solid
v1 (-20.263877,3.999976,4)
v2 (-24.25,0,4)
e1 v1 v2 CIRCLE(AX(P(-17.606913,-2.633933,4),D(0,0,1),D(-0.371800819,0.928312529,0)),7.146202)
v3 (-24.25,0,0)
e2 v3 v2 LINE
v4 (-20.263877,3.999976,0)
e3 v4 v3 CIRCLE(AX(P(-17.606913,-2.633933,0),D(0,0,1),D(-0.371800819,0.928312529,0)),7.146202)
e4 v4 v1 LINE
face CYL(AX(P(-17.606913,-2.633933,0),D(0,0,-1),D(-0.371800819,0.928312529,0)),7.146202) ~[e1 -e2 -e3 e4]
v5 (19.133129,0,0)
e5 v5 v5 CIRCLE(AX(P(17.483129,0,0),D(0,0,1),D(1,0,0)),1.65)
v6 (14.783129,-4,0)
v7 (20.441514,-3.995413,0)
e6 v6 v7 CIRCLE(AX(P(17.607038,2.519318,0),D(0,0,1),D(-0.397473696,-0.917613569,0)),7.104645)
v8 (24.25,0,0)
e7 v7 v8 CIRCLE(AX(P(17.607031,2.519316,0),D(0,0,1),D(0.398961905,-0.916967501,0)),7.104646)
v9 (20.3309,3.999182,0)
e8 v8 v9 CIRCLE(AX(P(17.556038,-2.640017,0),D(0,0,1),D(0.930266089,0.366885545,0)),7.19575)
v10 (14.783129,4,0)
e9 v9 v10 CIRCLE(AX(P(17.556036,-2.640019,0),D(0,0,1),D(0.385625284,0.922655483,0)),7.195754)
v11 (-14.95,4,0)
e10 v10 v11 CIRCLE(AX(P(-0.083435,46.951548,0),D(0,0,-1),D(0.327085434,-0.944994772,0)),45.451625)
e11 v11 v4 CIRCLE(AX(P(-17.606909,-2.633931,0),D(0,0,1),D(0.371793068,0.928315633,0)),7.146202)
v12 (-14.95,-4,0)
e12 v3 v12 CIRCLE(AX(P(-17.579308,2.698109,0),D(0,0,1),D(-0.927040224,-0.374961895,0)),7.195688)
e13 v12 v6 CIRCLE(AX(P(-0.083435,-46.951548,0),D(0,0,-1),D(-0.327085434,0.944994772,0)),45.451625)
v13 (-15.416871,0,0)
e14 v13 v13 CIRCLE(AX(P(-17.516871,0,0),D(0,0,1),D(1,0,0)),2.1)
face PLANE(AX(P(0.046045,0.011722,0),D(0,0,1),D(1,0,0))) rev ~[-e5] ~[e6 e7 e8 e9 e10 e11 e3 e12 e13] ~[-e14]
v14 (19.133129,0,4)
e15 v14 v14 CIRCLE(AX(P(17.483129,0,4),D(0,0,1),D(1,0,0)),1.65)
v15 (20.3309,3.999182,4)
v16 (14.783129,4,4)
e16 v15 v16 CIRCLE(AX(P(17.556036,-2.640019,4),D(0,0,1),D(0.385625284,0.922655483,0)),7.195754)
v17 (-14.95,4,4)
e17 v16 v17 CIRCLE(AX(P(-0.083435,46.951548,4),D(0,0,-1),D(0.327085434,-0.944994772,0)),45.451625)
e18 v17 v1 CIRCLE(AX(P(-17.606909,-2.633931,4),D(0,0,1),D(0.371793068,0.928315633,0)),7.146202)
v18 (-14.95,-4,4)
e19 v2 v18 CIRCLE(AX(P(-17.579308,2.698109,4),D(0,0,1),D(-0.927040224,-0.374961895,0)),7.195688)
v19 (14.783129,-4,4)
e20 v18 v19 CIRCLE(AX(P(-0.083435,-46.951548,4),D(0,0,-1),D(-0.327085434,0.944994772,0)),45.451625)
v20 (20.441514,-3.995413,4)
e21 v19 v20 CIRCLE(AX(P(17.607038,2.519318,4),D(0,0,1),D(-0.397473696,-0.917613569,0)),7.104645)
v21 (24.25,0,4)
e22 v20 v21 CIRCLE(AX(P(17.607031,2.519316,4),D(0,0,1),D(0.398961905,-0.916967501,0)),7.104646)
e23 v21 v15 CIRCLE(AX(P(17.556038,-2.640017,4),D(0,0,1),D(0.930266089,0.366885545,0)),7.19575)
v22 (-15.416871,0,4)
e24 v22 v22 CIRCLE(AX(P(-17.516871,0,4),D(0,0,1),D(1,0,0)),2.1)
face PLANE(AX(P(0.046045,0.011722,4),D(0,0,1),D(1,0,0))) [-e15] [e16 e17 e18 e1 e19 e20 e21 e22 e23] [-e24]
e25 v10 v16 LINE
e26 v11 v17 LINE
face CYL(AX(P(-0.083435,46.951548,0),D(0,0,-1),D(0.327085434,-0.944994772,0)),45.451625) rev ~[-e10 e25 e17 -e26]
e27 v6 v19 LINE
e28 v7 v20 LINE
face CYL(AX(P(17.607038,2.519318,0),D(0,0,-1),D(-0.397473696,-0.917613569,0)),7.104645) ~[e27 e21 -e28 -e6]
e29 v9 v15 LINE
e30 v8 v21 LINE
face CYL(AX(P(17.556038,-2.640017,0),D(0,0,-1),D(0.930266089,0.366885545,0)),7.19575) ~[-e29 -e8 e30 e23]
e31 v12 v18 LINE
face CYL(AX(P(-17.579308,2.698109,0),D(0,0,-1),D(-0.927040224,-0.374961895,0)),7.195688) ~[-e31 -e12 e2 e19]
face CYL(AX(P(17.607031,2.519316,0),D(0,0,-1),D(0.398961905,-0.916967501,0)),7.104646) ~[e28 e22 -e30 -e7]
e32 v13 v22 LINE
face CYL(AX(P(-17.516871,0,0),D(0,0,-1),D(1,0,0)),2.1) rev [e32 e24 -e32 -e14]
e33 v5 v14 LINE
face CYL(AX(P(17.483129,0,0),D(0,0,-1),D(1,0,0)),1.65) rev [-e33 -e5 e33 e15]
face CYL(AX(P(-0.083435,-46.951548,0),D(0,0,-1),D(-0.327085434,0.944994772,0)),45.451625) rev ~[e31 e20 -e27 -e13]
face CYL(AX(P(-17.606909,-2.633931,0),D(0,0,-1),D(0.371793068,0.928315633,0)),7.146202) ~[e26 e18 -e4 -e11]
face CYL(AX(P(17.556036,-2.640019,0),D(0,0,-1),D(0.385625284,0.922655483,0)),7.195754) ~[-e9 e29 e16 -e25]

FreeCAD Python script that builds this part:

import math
import FreeCAD as App
import Part
import Sketcher
from FreeCAD import Vector
Q = App.Units.Quantity

doc = App.newDocument("Part")
body = doc.addObject("PartDesign::Body", "Body")

sketch1 = body.newObject("Sketcher::SketchObject", "Sketch")
sketch1.AttachmentSupport = (doc.getObject("XY_Plane"), [""])
sketch1.MapMode = "FlatFace"
sketch1.addGeometry(Part.ArcOfCircle(Part.Circle(Vector(-0.1, -47, 0), Vector(0, 0, 1), 45.5), math.radians(71), math.radians(109)), False)
sketch1.addGeometry(Part.ArcOfCircle(Part.Circle(Vector(17.6, 2.5, 0), Vector(0, 0, 1), 7.1), math.radians(-113), math.radians(-66)), False)
sketch1.addGeometry(Part.ArcOfCircle(Part.Circle(Vector(17.6, 2.5, 0), Vector(0, 0, 1), 7.1), math.radians(-66), math.radians(-21)), False)
sketch1.addGeometry(Part.ArcOfCircle(Part.Circle(Vector(17.6, -2.6, 0), Vector(0, 0, 1), 7.2), math.radians(22), math.radians(67)), False)
sketch1.addGeometry(Part.ArcOfCircle(Part.Circle(Vector(17.6, -2.6, 0), Vector(0, 0, 1), 7.2), math.radians(67), math.radians(113)), False)
sketch1.addGeometry(Part.ArcOfCircle(Part.Circle(Vector(-0.1, 47, 0), Vector(0, 0, 1), 45.5), math.radians(-109), math.radians(-71)), False)
sketch1.addGeometry(Part.ArcOfCircle(Part.Circle(Vector(-17.6, -2.6, 0), Vector(0, 0, 1), 7.1), math.radians(68), math.radians(112)), False)
sketch1.addGeometry(Part.ArcOfCircle(Part.Circle(Vector(-17.6, -2.6, 0), Vector(0, 0, 1), 7.1), math.radians(112), math.radians(158)), False)
sketch1.addGeometry(Part.ArcOfCircle(Part.Circle(Vector(-17.6, 2.7, 0), Vector(0, 0, 1), 7.2), math.radians(-158), math.radians(-69)), False)
sketch1.addGeometry(Part.Circle(Vector(-17.5, 0, 0), Vector(0, 0, 1), 2.1), False)
sketch1.addGeometry(Part.Circle(Vector(17.5, 0, 0), Vector(0, 0, 1), 1.6), False)
sketch1.addConstraint(Sketcher.Constraint("Coincident", 0, 1, 1, 1))
sketch1.addConstraint(Sketcher.Constraint("Tangent", 1, 2, 2, 1))
sketch1.addConstraint(Sketcher.Constraint("Coincident", 2, 2, 3, 1))
sketch1.addConstraint(Sketcher.Constraint("Tangent", 3, 2, 4, 1))
sketch1.addConstraint(Sketcher.Constraint("Coincident", 4, 2, 5, 2))
sketch1.addConstraint(Sketcher.Constraint("Coincident", 5, 1, 6, 1))
sketch1.addConstraint(Sketcher.Constraint("Tangent", 6, 2, 7, 1))
sketch1.addConstraint(Sketcher.Constraint("Coincident", 7, 2, 8, 1))
sketch1.addConstraint(Sketcher.Constraint("Coincident", 8, 2, 0, 2))
sketch1.addConstraint(Sketcher.Constraint("Equal", 1, 2))
sketch1.addConstraint(Sketcher.Constraint("Equal", 0, 5))
sketch1.addConstraint(Sketcher.Constraint("Equal", 6, 7))
sketch1.addConstraint(Sketcher.Constraint("Symmetric", 2, 2, 7, 2, -1, 1))
sketch1.addConstraint(Sketcher.Constraint("Symmetric", 0, 3, 5, 3, -1))
sketch1.addConstraint(Sketcher.Constraint("PointOnObject", 9, 3, -1))
sketch1.addConstraint(Sketcher.Constraint("PointOnObject", 10, 3, -1))
sketch1.addConstraint(Sketcher.Constraint("PointOnObject", 2, 2, -1))
sketch1.addConstraint(Sketcher.Constraint("Horizontal", 4, 2, 5, 1))
sketch1.addConstraint(Sketcher.Constraint("Horizontal", 0, 1, 8, 2))
sketch1.addConstraint(Sketcher.Constraint("Vertical", 0, 1, 4, 2))
sketch1.addConstraint(Sketcher.Constraint("Diameter", 9, Q("4.2 mm")))
sketch1.addConstraint(Sketcher.Constraint("Diameter", 10, Q("3.3 mm")))
sketch1.addConstraint(Sketcher.Constraint("DistanceY", 0, 1, -1, 1, Q("4 mm")))
sketch1.addConstraint(Sketcher.Constraint("DistanceX", 9, 3, 10, 3, Q("35 mm")))
sketch1.addConstraint(Sketcher.Constraint("DistanceX", 0, 1, 10, 3, Q("2.7 mm")))
sketch1.addConstraint(Sketcher.Constraint("DistanceX", -1, 1, 2, 2, Q("24.25 mm")))
sketch1.addConstraint(Sketcher.Constraint("DistanceX", 5, 1, -1, 1, Q("14.95 mm")))
sketch1.addConstraint(Sketcher.Constraint("Radius", 3, Q("7.19575 mm")))
sketch1.addConstraint(Sketcher.Constraint("Radius", 0, Q("45.451625 mm")))
sketch1.addConstraint(Sketcher.Constraint("Radius", 1, Q("7.104645 mm")))
sketch1.addConstraint(Sketcher.Constraint("Radius", 4, Q("7.195754 mm")))
sketch1.addConstraint(Sketcher.Constraint("Radius", 6, Q("7.146202 mm")))
sketch1.addConstraint(Sketcher.Constraint("Radius", 8, Q("7.195688 mm")))
sketch1.addConstraint(Sketcher.Constraint("DistanceX", -1, 1, 3, 2, Q("20.3309 mm")))
sketch1.addConstraint(Sketcher.Constraint("DistanceX", 10, 3, 2, 3, Q("0.123902 mm")))
sketch1.addConstraint(Sketcher.Constraint("DistanceX", 4, 3, 1, 2, Q("2.885478 mm")))
sketch1.addConstraint(Sketcher.Constraint("DistanceX", 6, 2, 8, 3, Q("2.684569 mm")))
pad1 = body.newObject("PartDesign::Pad", "Pad")
pad1.Profile = sketch1
pad1.Length = 4

doc.recompute()
